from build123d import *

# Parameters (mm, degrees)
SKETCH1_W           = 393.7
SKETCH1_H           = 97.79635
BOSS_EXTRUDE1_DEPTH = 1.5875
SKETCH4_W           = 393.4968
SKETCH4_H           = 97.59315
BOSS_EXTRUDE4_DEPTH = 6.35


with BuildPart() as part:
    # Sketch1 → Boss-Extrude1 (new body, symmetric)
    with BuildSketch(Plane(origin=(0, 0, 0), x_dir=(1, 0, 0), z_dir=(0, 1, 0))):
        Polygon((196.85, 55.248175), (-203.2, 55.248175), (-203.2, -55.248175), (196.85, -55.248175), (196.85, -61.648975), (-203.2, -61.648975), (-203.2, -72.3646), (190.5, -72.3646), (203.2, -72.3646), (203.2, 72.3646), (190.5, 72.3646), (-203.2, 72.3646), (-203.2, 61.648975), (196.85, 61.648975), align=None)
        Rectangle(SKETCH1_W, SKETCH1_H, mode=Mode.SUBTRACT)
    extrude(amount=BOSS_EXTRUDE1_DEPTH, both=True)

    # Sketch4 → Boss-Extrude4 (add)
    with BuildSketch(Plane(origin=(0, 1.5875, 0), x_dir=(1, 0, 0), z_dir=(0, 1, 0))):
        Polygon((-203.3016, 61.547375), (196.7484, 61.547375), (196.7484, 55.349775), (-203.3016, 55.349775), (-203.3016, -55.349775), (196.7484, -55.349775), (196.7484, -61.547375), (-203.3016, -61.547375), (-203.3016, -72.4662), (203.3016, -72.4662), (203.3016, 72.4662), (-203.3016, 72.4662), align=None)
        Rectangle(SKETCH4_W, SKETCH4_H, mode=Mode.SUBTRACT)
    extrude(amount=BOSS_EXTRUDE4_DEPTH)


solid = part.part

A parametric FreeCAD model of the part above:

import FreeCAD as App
import Part
import Sketcher
Q = App.Units.Quantity


def add_polygon(sketch, points):
    """Adds a closed chain of lines whose ends are joined by coincident constraints."""
    first, n = sketch.GeometryCount, len(points)
    for a, b in zip(points, points[1:] + points[:1]):
        sketch.addGeometry(Part.LineSegment(App.Vector(*a, 0), App.Vector(*b, 0)), False)
    for i in range(n):
        sketch.addConstraint(Sketcher.Constraint("Coincident", first + i, 2, first + (i + 1) % n, 1))

doc = App.newDocument("Part")
params = doc.addObject("Spreadsheet::Sheet", "Params")
for row, (alias, value) in enumerate([
    ("sketch1_width", "16 in"),
    ("sketch1_width2", "15.5 in"),
    ("sketch1_height", "0.252 in"),
    ("sketch1_height2", "0.421875 in"),
    ("sketch1_height3", "5.698 in"),
    ("pad1_length", "0.125 in"),
    ("sketch2_width", "15.75 in"),
    ("sketch2_width2", "16.008 in"),
    ("sketch2_height", "0.244 in"),
    ("sketch2_height2", "5.706 in"),
    ("pad2_length", "0.25 in"),
], start=1):
    params.set(f"A{row}", alias)
    params.set(f"B{row}", "=" + value)
    params.setAlias(f"B{row}", alias)

body = doc.addObject("PartDesign::Body", "Body")

# Sketch on XZ plane
sketch1 = body.newObject("Sketcher::SketchObject", "Sketch")
sketch1.AttachmentSupport = (doc.getObject("XZ_Plane"), [""])
sketch1.MapMode = "FlatFace"
add_polygon(sketch1, [(197, -55), (-203, -55), (-203, 55), (197, 55), (197, 62), (-203, 62), (-203, 72), (203, 72), (203, -72), (-203, -72), (-203, -62), (197, -62)])  # lines 0-11
add_polygon(sketch1, [(197, 49), (-197, 49), (-197, -49), (197, -49)])  # lines 12-15
sketch1.addConstraint([
    Sketcher.Constraint("Horizontal", 0),
    Sketcher.Constraint("Vertical", 1),
    Sketcher.Constraint("Horizontal", 2),
    Sketcher.Constraint("Vertical", 3),
    Sketcher.Constraint("Horizontal", 4),
    Sketcher.Constraint("Vertical", 5),
    Sketcher.Constraint("Horizontal", 6),
    Sketcher.Constraint("Vertical", 7),
    Sketcher.Constraint("Horizontal", 8),
    Sketcher.Constraint("Vertical", 9),
    Sketcher.Constraint("Horizontal", 10),
    Sketcher.Constraint("Vertical", 11),
    Sketcher.Constraint("Horizontal", 12),
    Sketcher.Constraint("Vertical", 13),
    Sketcher.Constraint("Horizontal", 14),
    Sketcher.Constraint("Vertical", 15),
    Sketcher.Constraint("Symmetric", 5, 2, 7, 2, -1, 1),
    Sketcher.Constraint("Symmetric", 12, 2, 14, 2, -1, 1),
    Sketcher.Constraint("Symmetric", 4, 2, 9, 2, -1),
    Sketcher.Constraint("Symmetric", 2, 2, 11, 2, -1),
    Sketcher.Constraint("Vertical", 1, 2, 4, 2),
    Sketcher.Constraint("Vertical", 11, 2, 14, 2),
    Sketcher.Constraint("DistanceX", 6, 1, 6, 2, Q("16 in")),
    Sketcher.Constraint("DistanceX", 12, 2, 12, 1, Q("15.5 in")),
    Sketcher.Constraint("DistanceY", 3, 1, 3, 2, Q("0.252 in")),
    Sketcher.Constraint("DistanceY", 5, 1, 5, 2, Q("0.421875 in")),
    Sketcher.Constraint("DistanceY", 7, 2, 7, 1, Q("5.698 in")),
    Sketcher.Constraint("DistanceY", 12, 2, 1, 2, Q("0.25 in")),
])
sketch1.setExpression("Constraints[38]", "Params.sketch1_width")
sketch1.setExpression("Constraints[39]", "Params.sketch1_width2")
sketch1.setExpression("Constraints[40]", "Params.sketch1_height")
sketch1.setExpression("Constraints[41]", "Params.sketch1_height2")
sketch1.setExpression("Constraints[42]", "Params.sketch1_height3")
pad1 = body.newObject("PartDesign::Pad", "Pad")
pad1.Profile = sketch1
pad1.setExpression("Length", "Params.pad1_length")
pad1.Midplane = True

# Sketch on XZ plane
sketch2 = body.newObject("Sketcher::SketchObject", "Sketch001")
sketch2.AttachmentSupport = (doc.getObject("XZ_Plane"), [""])
sketch2.MapMode = "FlatFace"
sketch2.AttachmentOffset = App.Placement(App.Vector(0, 0, -0.0625 * 25.4), App.Rotation())
add_polygon(sketch2, [(-203, -62), (197, -62), (197, -55), (-203, -55), (-203, 55), (197, 55), (197, 62), (-203, 62), (-203, 72), (203, 72), (203, -72), (-203, -72)])  # lines 0-11
add_polygon(sketch2, [(197, 49), (-197, 49), (-197, -49), (197, -49)])  # lines 12-15
sketch2.addConstraint([
    Sketcher.Constraint("Horizontal", 0),
    Sketcher.Constraint("Vertical", 1),
    Sketcher.Constraint("Horizontal", 2),
    Sketcher.Constraint("Vertical", 3),
    Sketcher.Constraint("Horizontal", 4),
    Sketcher.Constraint("Vertical", 5),
    Sketcher.Constraint("Horizontal", 6),
    Sketcher.Constraint("Vertical", 7),
    Sketcher.Constraint("Horizontal", 8),
    Sketcher.Constraint("Vertical", 9),
    Sketcher.Constraint("Horizontal", 10),
    Sketcher.Constraint("Vertical", 11),
    Sketcher.Constraint("Horizontal", 12),
    Sketcher.Constraint("Vertical", 13),
    Sketcher.Constraint("Horizontal", 14),
    Sketcher.Constraint("Vertical", 15),
    Sketcher.Constraint("Symmetric", 7, 2, 9, 2, -1, 1),
    Sketcher.Constraint("Symmetric", 12, 2, 14, 2, -1, 1),
    Sketcher.Constraint("Symmetric", 1, 2, 4, 2, -1),
    Sketcher.Constraint("Symmetric", 6, 2, 11, 2, -1),
    Sketcher.Constraint("Vertical", 3, 2, 6, 2),
    Sketcher.Constraint("Vertical", 5, 2, 14, 2),
    Sketcher.Constraint("DistanceX", 0, 1, 0, 2, Q("15.75 in")),
    Sketcher.Constraint("DistanceX", 8, 1, 8, 2, Q("16.008 in")),
    Sketcher.Constraint("DistanceY", 1, 1, 1, 2, Q("0.244 in")),
    Sketcher.Constraint("DistanceY", 9, 2, 9, 1, Q("5.706 in")),
    Sketcher.Constraint("DistanceY", 12, 2, 3, 2, Q("0.258 in")),
    Sketcher.Constraint("DistanceY", 3, 1, 3, 2, Q("110.69955 mm")),
])
sketch2.setExpression("Constraints[38]", "Params.sketch2_width")
sketch2.setExpression("Constraints[39]", "Params.sketch2_width2")
sketch2.setExpression("Constraints[40]", "Params.sketch2_height")
sketch2.setExpression("Constraints[41]", "Params.sketch2_height2")
pad2 = body.newObject("PartDesign::Pad", "Pad001")
pad2.Profile = sketch2
pad2.setExpression("Length", "Params.pad2_length")
pad2.Reversed = True

doc.recompute()
